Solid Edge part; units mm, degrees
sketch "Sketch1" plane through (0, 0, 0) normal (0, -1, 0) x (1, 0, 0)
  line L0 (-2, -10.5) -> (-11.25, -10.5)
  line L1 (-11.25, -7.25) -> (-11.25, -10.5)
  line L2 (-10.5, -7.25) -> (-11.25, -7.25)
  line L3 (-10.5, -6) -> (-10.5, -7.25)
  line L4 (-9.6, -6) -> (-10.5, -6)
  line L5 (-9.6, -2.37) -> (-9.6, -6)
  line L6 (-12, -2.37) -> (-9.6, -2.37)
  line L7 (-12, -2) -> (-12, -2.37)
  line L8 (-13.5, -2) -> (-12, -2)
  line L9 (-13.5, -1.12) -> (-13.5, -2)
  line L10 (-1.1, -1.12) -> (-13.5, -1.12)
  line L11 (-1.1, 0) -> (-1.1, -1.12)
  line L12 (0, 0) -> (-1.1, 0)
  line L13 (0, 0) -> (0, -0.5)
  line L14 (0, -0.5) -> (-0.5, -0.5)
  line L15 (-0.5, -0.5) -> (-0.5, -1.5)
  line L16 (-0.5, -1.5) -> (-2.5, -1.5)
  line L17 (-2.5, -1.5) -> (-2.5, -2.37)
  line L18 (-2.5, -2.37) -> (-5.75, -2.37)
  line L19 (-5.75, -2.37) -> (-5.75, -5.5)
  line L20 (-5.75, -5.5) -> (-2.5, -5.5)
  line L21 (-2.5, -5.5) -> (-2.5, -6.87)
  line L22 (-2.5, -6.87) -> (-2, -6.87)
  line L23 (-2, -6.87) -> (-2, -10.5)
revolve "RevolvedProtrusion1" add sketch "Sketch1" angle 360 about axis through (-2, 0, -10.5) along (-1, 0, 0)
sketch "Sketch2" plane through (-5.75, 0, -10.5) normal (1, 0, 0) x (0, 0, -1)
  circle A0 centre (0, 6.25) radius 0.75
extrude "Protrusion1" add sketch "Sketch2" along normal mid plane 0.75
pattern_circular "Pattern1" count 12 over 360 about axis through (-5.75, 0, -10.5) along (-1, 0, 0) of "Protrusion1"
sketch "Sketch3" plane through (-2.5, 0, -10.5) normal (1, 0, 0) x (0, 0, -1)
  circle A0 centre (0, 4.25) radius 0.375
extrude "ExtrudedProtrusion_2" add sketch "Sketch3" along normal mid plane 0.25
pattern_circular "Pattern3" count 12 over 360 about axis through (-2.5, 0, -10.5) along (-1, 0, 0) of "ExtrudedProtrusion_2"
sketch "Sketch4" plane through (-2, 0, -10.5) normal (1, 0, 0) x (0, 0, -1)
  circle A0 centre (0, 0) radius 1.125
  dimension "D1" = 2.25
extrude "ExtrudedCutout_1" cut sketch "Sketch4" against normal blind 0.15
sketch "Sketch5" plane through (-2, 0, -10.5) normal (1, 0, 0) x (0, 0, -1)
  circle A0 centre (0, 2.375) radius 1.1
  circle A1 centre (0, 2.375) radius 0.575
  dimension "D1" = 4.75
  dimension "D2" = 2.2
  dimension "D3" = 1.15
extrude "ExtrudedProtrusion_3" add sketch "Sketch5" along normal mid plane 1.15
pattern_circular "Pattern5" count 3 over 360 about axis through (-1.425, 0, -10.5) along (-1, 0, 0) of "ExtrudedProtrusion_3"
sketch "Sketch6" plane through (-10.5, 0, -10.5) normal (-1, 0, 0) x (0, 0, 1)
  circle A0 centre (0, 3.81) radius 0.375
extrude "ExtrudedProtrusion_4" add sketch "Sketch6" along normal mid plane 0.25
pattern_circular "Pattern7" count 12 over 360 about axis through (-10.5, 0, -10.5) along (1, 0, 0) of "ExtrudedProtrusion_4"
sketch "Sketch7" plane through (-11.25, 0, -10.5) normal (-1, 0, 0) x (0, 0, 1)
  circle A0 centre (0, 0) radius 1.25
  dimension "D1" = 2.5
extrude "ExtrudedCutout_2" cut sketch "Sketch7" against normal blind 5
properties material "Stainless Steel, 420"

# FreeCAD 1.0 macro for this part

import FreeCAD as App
import Part
import Sketcher
from FreeCAD import Vector

doc = App.newDocument("Part")
params = doc.addObject("Spreadsheet::Sheet", "Params")
for row, (alias, value) in enumerate([
    ("sketch1_width", "2 mm"),
    ("sketch1_height", "1 mm"),
    ("sketch1_width2", "0.5 mm"),
    ("sketch1_width3", "1.1 mm"),
    ("sketch1_width4", "12.4 mm"),
    ("revolution_angle", "360 deg"),
    ("sketch2_diameter", "1.5 mm"),
    ("pad1_length", "0.75 mm"),
    ("sketch3_diameter", "0.75 mm"),
    ("pad2_length", "0.25 mm"),
    ("sketch4_diameter", "2.25 mm"),
    ("pocket1_length", "0.15 mm"),
    ("sketch5_diameter", "2.2 mm"),
    ("sketch5_diameter2", "1.15 mm"),
    ("pad3_length", "1.15 mm"),
    ("sketch6_diameter", "0.75 mm"),
    ("pad4_length", "0.25 mm"),
    ("sketch7_diameter", "2.5 mm"),
    ("pocket2_length", "5 mm"),
], start=1):
    params.set(f"A{row}", alias)
    params.set(f"B{row}", "=" + value)
    params.setAlias(f"B{row}", alias)

body = doc.addObject("PartDesign::Body", "Body")

# Sketch on XZ plane
sketch1 = body.newObject("Sketcher::SketchObject", "Sketch")
sketch1.AttachmentSupport = (doc.getObject("XZ_Plane"), [""])
sketch1.MapMode = "FlatFace"
sketch1.addGeometry([
    Part.LineSegment(Vector(-11.25, -10.5, 0), Vector(-2, -10.5, 0)),  # 0
    Part.LineSegment(Vector(-2, -10.5, 0), Vector(-2, -6.87, 0)),  # 1
    Part.LineSegment(Vector(-2, -6.87, 0), Vector(-2.5, -6.87, 0)),  # 2
    Part.LineSegment(Vector(-2.5, -6.87, 0), Vector(-2.5, -5.5, 0)),  # 3
    Part.LineSegment(Vector(-2.5, -5.5, 0), Vector(-5.75, -5.5, 0)),  # 4
    Part.LineSegment(Vector(-5.75, -5.5, 0), Vector(-5.75, -2.37, 0)),  # 5
    Part.LineSegment(Vector(-5.75, -2.37, 0), Vector(-2.5, -2.37, 0)),  # 6
    Part.LineSegment(Vector(-2.5, -2.37, 0), Vector(-2.5, -1.5, 0)),  # 7
    Part.LineSegment(Vector(-2.5, -1.5, 0), Vector(-0.5, -1.5, 0)),  # 8
    Part.LineSegment(Vector(-0.5, -1.5, 0), Vector(-0.5, -0.5, 0)),  # 9
    Part.LineSegment(Vector(-0.5, -0.5, 0), Vector(0, -0.5, 0)),  # 10
    Part.LineSegment(Vector(0, -0.5, 0), Vector(0, 0, 0)),  # 11
    Part.LineSegment(Vector(0, 0, 0), Vector(-1.1, 0, 0)),  # 12
    Part.LineSegment(Vector(-1.1, 0, 0), Vector(-1.1, -1.12, 0)),  # 13
    Part.LineSegment(Vector(-1.1, -1.12, 0), Vector(-13.5, -1.12, 0)),  # 14
    Part.LineSegment(Vector(-13.5, -1.12, 0), Vector(-13.5, -2, 0)),  # 15
    Part.LineSegment(Vector(-13.5, -2, 0), Vector(-12, -2, 0)),  # 16
    Part.LineSegment(Vector(-12, -2, 0), Vector(-12, -2.37, 0)),  # 17
    Part.LineSegment(Vector(-12, -2.37, 0), Vector(-9.6, -2.37, 0)),  # 18
    Part.LineSegment(Vector(-9.6, -2.37, 0), Vector(-9.6, -6, 0)),  # 19
    Part.LineSegment(Vector(-9.6, -6, 0), Vector(-10.5, -6, 0)),  # 20
    Part.LineSegment(Vector(-10.5, -6, 0), Vector(-10.5, -7.25, 0)),  # 21
    Part.LineSegment(Vector(-10.5, -7.25, 0), Vector(-11.25, -7.25, 0)),  # 22
    Part.LineSegment(Vector(-11.25, -7.25, 0), Vector(-11.25, -10.5, 0)),  # 23
], False)
sketch1.addGeometry(Part.LineSegment(Vector(0, -10.5, 0), Vector(-13.5, -10.5, 0)), True)  # axis
sketch1.addConstraint([
    Sketcher.Constraint("Coincident", 0, 2, 1, 1),
    Sketcher.Constraint("Coincident", 1, 2, 2, 1),
    Sketcher.Constraint("Coincident", 2, 2, 3, 1),
    Sketcher.Constraint("Coincident", 3, 2, 4, 1),
    Sketcher.Constraint("Coincident", 4, 2, 5, 1),
    Sketcher.Constraint("Coincident", 5, 2, 6, 1),
    Sketcher.Constraint("Coincident", 6, 2, 7, 1),
    Sketcher.Constraint("Coincident", 7, 2, 8, 1),
    Sketcher.Constraint("Coincident", 8, 2, 9, 1),
    Sketcher.Constraint("Coincident", 9, 2, 10, 1),
    Sketcher.Constraint("Coincident", 10, 2, 11, 1),
    Sketcher.Constraint("Coincident", 11, 2, 12, 1),
    Sketcher.Constraint("Coincident", 12, 2, 13, 1),
    Sketcher.Constraint("Coincident", 13, 2, 14, 1),
    Sketcher.Constraint("Coincident", 14, 2, 15, 1),
    Sketcher.Constraint("Coincident", 15, 2, 16, 1),
    Sketcher.Constraint("Coincident", 16, 2, 17, 1),
    Sketcher.Constraint("Coincident", 17, 2, 18, 1),
    Sketcher.Constraint("Coincident", 18, 2, 19, 1),
    Sketcher.Constraint("Coincident", 19, 2, 20, 1),
    Sketcher.Constraint("Coincident", 20, 2, 21, 1),
    Sketcher.Constraint("Coincident", 21, 2, 22, 1),
    Sketcher.Constraint("Coincident", 22, 2, 23, 1),
    Sketcher.Constraint("Coincident", 23, 2, 0, 1),
    Sketcher.Constraint("Horizontal", 0),
    Sketcher.Constraint("Vertical", 1),
    Sketcher.Constraint("Horizontal", 2),
    Sketcher.Constraint("Vertical", 3),
    Sketcher.Constraint("Horizontal", 4),
    Sketcher.Constraint("Vertical", 5),
    Sketcher.Constraint("Horizontal", 6),
    Sketcher.Constraint("Vertical", 7),
    Sketcher.Constraint("Horizontal", 8),
    Sketcher.Constraint("Vertical", 9),
    Sketcher.Constraint("Horizontal", 10),
    Sketcher.Constraint("Vertical", 11),
    Sketcher.Constraint("Horizontal", 12),
    Sketcher.Constraint("Vertical", 13),
    Sketcher.Constraint("Horizontal", 14),
    Sketcher.Constraint("Vertical", 15),
    Sketcher.Constraint("Horizontal", 16),
    Sketcher.Constraint("Vertical", 17),
    Sketcher.Constraint("Horizontal", 18),
    Sketcher.Constraint("Vertical", 19),
    Sketcher.Constraint("Horizontal", 20),
    Sketcher.Constraint("Vertical", 21),
    Sketcher.Constraint("Horizontal", 22),
    Sketcher.Constraint("Vertical", 23),
    Sketcher.Constraint("Horizontal", 24),
    Sketcher.Constraint("Coincident", 11, 2, -1, 1),
    Sketcher.Constraint("PointOnObject", 24, 1, -2),
    Sketcher.Constraint("Horizontal", 6, 2, 17, 2),
    Sketcher.Constraint("Horizontal", 23, 2, 24, 1),
    Sketcher.Constraint("Vertical", 3, 2, 6, 2),
    Sketcher.Constraint("Vertical", 15, 2, 24, 2),
    Sketcher.Constraint("Equal", 2, 10),
    Sketcher.Constraint("Equal", 10, 11),
    Sketcher.Constraint("Equal", 1, 19),
    Sketcher.Constraint("Equal", 6, 23),
    Sketcher.Constraint("DistanceX", 8, 1, 8, 2, 2.0),
    Sketcher.Constraint("DistanceY", 9, 1, 9, 2, 1.0),
    Sketcher.Constraint("DistanceX", 2, 2, 2, 1, 0.5),
    Sketcher.Constraint("DistanceX", 12, 2, 12, 1, 1.1),
    Sketcher.Constraint("DistanceX", 14, 2, 14, 1, 12.4),
    Sketcher.Constraint("DistanceX", 16, 1, 16, 2, 1.5),
    Sketcher.Constraint("DistanceX", 18, 1, 18, 2, 2.4),
    Sketcher.Constraint("DistanceX", 20, 2, 20, 1, 0.9),
    Sketcher.Constraint("DistanceY", 15, 2, -1, 1, 2.0),
    Sketcher.Constraint("DistanceY", 19, 2, -1, 1, 6.0),
    Sketcher.Constraint("DistanceY", 0, 2, 3, 2, 5.0),
    Sketcher.Constraint("DistanceY", 3, 2, 7, 2, 4.0),
    Sketcher.Constraint("DistanceX", 0, 1, 0, 2, 9.25),
    Sketcher.Constraint("DistanceX", 4, 2, 4, 1, 3.25),
    Sketcher.Constraint("DistanceY", 1, 1, 1, 2, 3.63),
    Sketcher.Constraint("DistanceY", 13, 2, 13, 1, 1.12),
])
sketch1.setExpression("Constraints[59]", "Params.sketch1_width")
sketch1.setExpression("Constraints[60]", "Params.sketch1_height")
sketch1.setExpression("Constraints[61]", "Params.sketch1_width2")
sketch1.setExpression("Constraints[62]", "Params.sketch1_width3")
sketch1.setExpression("Constraints[63]", "Params.sketch1_width4")
revolution = body.newObject("PartDesign::Revolution", "Revolution")
revolution.Profile = sketch1
revolution.ReferenceAxis = (sketch1, ["Axis0"])
revolution.setExpression("Angle", "Params.revolution_angle")

# Sketch on YZ plane
sketch2 = body.newObject("Sketcher::SketchObject", "Sketch001")
sketch2.AttachmentSupport = (doc.getObject("YZ_Plane"), [""])
sketch2.MapMode = "FlatFace"
sketch2.AttachmentOffset = App.Placement(Vector(0, 0, -5.75), App.Rotation())
sketch2.addGeometry(Part.Circle(Vector(6.2, -10.5, 0), Vector(0, 0, 1), 0.8), False)
sketch2.addConstraint([
    Sketcher.Constraint("Diameter", 0, 1.5),
    Sketcher.Constraint("DistanceY", 0, 3, -1, 1, 10.5),
    Sketcher.Constraint("DistanceX", -1, 1, 0, 3, 6.25),
])
sketch2.setExpression("Constraints[0]", "Params.sketch2_diameter")
pad1 = body.newObject("PartDesign::Pad", "Pad")
pad1.Profile = sketch2
pad1.setExpression("Length", "Params.pad1_length")
pad1.Midplane = True
doc.recompute()

datumline = body.newObject("PartDesign::Line", "DatumLine")
datumline.Placement = App.Placement(Vector(0, 0, -10.5), App.Rotation(Vector(0, 0, 1), Vector(1, 0, 0)))
polarpattern = body.newObject("PartDesign::PolarPattern", "PolarPattern")
polarpattern.Originals = [pad1]
polarpattern.Axis = (datumline, [""])
polarpattern.Angle = 360
polarpattern.Occurrences = 12
body.Tip = polarpattern

# Sketch on YZ plane
sketch3 = body.newObject("Sketcher::SketchObject", "Sketch002")
sketch3.AttachmentSupport = (doc.getObject("YZ_Plane"), [""])
sketch3.MapMode = "FlatFace"
sketch3.AttachmentOffset = App.Placement(Vector(0, 0, -2.5), App.Rotation())
sketch3.addGeometry(Part.Circle(Vector(4.25, -10.5, 0), Vector(0, 0, 1), 0.38), False)
sketch3.addConstraint([
    Sketcher.Constraint("Diameter", 0, 0.75),
    Sketcher.Constraint("DistanceY", 0, 3, -1, 1, 10.5),
    Sketcher.Constraint("DistanceX", -1, 1, 0, 3, 4.25),
])
sketch3.setExpression("Constraints[0]", "Params.sketch3_diameter")
pad2 = body.newObject("PartDesign::Pad", "Pad001")
pad2.Profile = sketch3
pad2.setExpression("Length", "Params.pad2_length")
pad2.Midplane = True
doc.recompute()

datumline2 = body.newObject("PartDesign::Line", "DatumLine001")
datumline2.Placement = App.Placement(Vector(0, 0, -10.5), App.Rotation(Vector(0, 0, 1), Vector(1, 0, 0)))
polarpattern2 = body.newObject("PartDesign::PolarPattern", "PolarPattern001")
polarpattern2.Originals = [pad2]
polarpattern2.Axis = (datumline2, [""])
polarpattern2.Angle = 360
polarpattern2.Occurrences = 12
body.Tip = polarpattern2

# Sketch on YZ plane
sketch4 = body.newObject("Sketcher::SketchObject", "Sketch003")
sketch4.AttachmentSupport = (doc.getObject("YZ_Plane"), [""])
sketch4.MapMode = "FlatFace"
sketch4.AttachmentOffset = App.Placement(Vector(0, 0, -2), App.Rotation())
sketch4.addGeometry(Part.Circle(Vector(0, -10.5, 0), Vector(0, 0, 1), 1.1), False)
sketch4.addConstraint([
    Sketcher.Constraint("PointOnObject", 0, 3, -2),
    Sketcher.Constraint("Diameter", 0, 2.25),
    Sketcher.Constraint("DistanceY", 0, 3, -1, 1, 10.5),
])
sketch4.setExpression("Constraints[1]", "Params.sketch4_diameter")
pocket1 = body.newObject("PartDesign::Pocket", "Pocket")
pocket1.Profile = sketch4
pocket1.setExpression("Length", "Params.pocket1_length")

# Sketch on YZ plane
sketch5 = body.newObject("Sketcher::SketchObject", "Sketch004")
sketch5.AttachmentSupport = (doc.getObject("YZ_Plane"), [""])
sketch5.MapMode = "FlatFace"
sketch5.AttachmentOffset = App.Placement(Vector(0, 0, -2), App.Rotation())
sketch5.addGeometry([
    Part.Circle(Vector(2.4, -10.5, 0), Vector(0, 0, 1), 1.1),
    Part.Circle(Vector(2.4, -10.5, 0), Vector(0, 0, 1), 0.6),
], False)
sketch5.addConstraint([
    Sketcher.Constraint("Coincident", 1, 3, 0, 3),
    Sketcher.Constraint("Diameter", 0, 2.2),
    Sketcher.Constraint("Diameter", 1, 1.15),
    Sketcher.Constraint("DistanceY", 0, 3, -1, 1, 10.5),
    Sketcher.Constraint("DistanceX", -1, 1, 0, 3, 2.375),
])
sketch5.setExpression("Constraints[1]", "Params.sketch5_diameter")
sketch5.setExpression("Constraints[2]", "Params.sketch5_diameter2")
pad3 = body.newObject("PartDesign::Pad", "Pad002")
pad3.Profile = sketch5
pad3.setExpression("Length", "Params.pad3_length")
pad3.Midplane = True
doc.recompute()

datumline3 = body.newObject("PartDesign::Line", "DatumLine002")
datumline3.Placement = App.Placement(Vector(0, 0, -10.5), App.Rotation(Vector(0, 0, 1), Vector(1, 0, 0)))
polarpattern3 = body.newObject("PartDesign::PolarPattern", "PolarPattern002")
polarpattern3.Originals = [pad3]
polarpattern3.Axis = (datumline3, [""])
polarpattern3.Angle = 360
polarpattern3.Occurrences = 3
body.Tip = polarpattern3

# Sketch on YZ plane
sketch6 = body.newObject("Sketcher::SketchObject", "Sketch005")
sketch6.AttachmentSupport = (doc.getObject("YZ_Plane"), [""])
sketch6.MapMode = "FlatFace"
sketch6.AttachmentOffset = App.Placement(Vector(0, 0, -10.5), App.Rotation())
sketch6.addGeometry(Part.Circle(Vector(3.81, -10.5, 0), Vector(0, 0, 1), 0.38), False)
sketch6.addConstraint([
    Sketcher.Constraint("Diameter", 0, 0.75),
    Sketcher.Constraint("DistanceY", 0, 3, -1, 1, 10.5),
    Sketcher.Constraint("DistanceX", -1, 1, 0, 3, 3.81),
])
sketch6.setExpression("Constraints[0]", "Params.sketch6_diameter")
pad4 = body.newObject("PartDesign::Pad", "Pad003")
pad4.Profile = sketch6
pad4.setExpression("Length", "Params.pad4_length")
pad4.Midplane = True
doc.recompute()

datumline4 = body.newObject("PartDesign::Line", "DatumLine003")
datumline4.Placement = App.Placement(Vector(0, 0, -10.5), App.Rotation(Vector(0, 0, 1), Vector(1, 0, 0)))
polarpattern4 = body.newObject("PartDesign::PolarPattern", "PolarPattern003")
polarpattern4.Originals = [pad4]
polarpattern4.Axis = (datumline4, [""])
polarpattern4.Angle = 360
polarpattern4.Occurrences = 12
body.Tip = polarpattern4

# Sketch on YZ plane
sketch7 = body.newObject("Sketcher::SketchObject", "Sketch006")
sketch7.AttachmentSupport = (doc.getObject("YZ_Plane"), [""])
sketch7.MapMode = "FlatFace"
sketch7.AttachmentOffset = App.Placement(Vector(0, 0, -11.25), App.Rotation())
sketch7.addGeometry(Part.Circle(Vector(0, -10.5, 0), Vector(0, 0, 1), 1.2), False)
sketch7.addConstraint([
    Sketcher.Constraint("PointOnObject", 0, 3, -2),
    Sketcher.Constraint("Diameter", 0, 2.5),
    Sketcher.Constraint("DistanceY", 0, 3, -1, 1, 10.5),
])
sketch7.setExpression("Constraints[1]", "Params.sketch7_diameter")
pocket2 = body.newObject("PartDesign::Pocket", "Pocket001")
pocket2.Profile = sketch7
pocket2.setExpression("Length", "Params.pocket2_length")
pocket2.Reversed = True

doc.recompute()
